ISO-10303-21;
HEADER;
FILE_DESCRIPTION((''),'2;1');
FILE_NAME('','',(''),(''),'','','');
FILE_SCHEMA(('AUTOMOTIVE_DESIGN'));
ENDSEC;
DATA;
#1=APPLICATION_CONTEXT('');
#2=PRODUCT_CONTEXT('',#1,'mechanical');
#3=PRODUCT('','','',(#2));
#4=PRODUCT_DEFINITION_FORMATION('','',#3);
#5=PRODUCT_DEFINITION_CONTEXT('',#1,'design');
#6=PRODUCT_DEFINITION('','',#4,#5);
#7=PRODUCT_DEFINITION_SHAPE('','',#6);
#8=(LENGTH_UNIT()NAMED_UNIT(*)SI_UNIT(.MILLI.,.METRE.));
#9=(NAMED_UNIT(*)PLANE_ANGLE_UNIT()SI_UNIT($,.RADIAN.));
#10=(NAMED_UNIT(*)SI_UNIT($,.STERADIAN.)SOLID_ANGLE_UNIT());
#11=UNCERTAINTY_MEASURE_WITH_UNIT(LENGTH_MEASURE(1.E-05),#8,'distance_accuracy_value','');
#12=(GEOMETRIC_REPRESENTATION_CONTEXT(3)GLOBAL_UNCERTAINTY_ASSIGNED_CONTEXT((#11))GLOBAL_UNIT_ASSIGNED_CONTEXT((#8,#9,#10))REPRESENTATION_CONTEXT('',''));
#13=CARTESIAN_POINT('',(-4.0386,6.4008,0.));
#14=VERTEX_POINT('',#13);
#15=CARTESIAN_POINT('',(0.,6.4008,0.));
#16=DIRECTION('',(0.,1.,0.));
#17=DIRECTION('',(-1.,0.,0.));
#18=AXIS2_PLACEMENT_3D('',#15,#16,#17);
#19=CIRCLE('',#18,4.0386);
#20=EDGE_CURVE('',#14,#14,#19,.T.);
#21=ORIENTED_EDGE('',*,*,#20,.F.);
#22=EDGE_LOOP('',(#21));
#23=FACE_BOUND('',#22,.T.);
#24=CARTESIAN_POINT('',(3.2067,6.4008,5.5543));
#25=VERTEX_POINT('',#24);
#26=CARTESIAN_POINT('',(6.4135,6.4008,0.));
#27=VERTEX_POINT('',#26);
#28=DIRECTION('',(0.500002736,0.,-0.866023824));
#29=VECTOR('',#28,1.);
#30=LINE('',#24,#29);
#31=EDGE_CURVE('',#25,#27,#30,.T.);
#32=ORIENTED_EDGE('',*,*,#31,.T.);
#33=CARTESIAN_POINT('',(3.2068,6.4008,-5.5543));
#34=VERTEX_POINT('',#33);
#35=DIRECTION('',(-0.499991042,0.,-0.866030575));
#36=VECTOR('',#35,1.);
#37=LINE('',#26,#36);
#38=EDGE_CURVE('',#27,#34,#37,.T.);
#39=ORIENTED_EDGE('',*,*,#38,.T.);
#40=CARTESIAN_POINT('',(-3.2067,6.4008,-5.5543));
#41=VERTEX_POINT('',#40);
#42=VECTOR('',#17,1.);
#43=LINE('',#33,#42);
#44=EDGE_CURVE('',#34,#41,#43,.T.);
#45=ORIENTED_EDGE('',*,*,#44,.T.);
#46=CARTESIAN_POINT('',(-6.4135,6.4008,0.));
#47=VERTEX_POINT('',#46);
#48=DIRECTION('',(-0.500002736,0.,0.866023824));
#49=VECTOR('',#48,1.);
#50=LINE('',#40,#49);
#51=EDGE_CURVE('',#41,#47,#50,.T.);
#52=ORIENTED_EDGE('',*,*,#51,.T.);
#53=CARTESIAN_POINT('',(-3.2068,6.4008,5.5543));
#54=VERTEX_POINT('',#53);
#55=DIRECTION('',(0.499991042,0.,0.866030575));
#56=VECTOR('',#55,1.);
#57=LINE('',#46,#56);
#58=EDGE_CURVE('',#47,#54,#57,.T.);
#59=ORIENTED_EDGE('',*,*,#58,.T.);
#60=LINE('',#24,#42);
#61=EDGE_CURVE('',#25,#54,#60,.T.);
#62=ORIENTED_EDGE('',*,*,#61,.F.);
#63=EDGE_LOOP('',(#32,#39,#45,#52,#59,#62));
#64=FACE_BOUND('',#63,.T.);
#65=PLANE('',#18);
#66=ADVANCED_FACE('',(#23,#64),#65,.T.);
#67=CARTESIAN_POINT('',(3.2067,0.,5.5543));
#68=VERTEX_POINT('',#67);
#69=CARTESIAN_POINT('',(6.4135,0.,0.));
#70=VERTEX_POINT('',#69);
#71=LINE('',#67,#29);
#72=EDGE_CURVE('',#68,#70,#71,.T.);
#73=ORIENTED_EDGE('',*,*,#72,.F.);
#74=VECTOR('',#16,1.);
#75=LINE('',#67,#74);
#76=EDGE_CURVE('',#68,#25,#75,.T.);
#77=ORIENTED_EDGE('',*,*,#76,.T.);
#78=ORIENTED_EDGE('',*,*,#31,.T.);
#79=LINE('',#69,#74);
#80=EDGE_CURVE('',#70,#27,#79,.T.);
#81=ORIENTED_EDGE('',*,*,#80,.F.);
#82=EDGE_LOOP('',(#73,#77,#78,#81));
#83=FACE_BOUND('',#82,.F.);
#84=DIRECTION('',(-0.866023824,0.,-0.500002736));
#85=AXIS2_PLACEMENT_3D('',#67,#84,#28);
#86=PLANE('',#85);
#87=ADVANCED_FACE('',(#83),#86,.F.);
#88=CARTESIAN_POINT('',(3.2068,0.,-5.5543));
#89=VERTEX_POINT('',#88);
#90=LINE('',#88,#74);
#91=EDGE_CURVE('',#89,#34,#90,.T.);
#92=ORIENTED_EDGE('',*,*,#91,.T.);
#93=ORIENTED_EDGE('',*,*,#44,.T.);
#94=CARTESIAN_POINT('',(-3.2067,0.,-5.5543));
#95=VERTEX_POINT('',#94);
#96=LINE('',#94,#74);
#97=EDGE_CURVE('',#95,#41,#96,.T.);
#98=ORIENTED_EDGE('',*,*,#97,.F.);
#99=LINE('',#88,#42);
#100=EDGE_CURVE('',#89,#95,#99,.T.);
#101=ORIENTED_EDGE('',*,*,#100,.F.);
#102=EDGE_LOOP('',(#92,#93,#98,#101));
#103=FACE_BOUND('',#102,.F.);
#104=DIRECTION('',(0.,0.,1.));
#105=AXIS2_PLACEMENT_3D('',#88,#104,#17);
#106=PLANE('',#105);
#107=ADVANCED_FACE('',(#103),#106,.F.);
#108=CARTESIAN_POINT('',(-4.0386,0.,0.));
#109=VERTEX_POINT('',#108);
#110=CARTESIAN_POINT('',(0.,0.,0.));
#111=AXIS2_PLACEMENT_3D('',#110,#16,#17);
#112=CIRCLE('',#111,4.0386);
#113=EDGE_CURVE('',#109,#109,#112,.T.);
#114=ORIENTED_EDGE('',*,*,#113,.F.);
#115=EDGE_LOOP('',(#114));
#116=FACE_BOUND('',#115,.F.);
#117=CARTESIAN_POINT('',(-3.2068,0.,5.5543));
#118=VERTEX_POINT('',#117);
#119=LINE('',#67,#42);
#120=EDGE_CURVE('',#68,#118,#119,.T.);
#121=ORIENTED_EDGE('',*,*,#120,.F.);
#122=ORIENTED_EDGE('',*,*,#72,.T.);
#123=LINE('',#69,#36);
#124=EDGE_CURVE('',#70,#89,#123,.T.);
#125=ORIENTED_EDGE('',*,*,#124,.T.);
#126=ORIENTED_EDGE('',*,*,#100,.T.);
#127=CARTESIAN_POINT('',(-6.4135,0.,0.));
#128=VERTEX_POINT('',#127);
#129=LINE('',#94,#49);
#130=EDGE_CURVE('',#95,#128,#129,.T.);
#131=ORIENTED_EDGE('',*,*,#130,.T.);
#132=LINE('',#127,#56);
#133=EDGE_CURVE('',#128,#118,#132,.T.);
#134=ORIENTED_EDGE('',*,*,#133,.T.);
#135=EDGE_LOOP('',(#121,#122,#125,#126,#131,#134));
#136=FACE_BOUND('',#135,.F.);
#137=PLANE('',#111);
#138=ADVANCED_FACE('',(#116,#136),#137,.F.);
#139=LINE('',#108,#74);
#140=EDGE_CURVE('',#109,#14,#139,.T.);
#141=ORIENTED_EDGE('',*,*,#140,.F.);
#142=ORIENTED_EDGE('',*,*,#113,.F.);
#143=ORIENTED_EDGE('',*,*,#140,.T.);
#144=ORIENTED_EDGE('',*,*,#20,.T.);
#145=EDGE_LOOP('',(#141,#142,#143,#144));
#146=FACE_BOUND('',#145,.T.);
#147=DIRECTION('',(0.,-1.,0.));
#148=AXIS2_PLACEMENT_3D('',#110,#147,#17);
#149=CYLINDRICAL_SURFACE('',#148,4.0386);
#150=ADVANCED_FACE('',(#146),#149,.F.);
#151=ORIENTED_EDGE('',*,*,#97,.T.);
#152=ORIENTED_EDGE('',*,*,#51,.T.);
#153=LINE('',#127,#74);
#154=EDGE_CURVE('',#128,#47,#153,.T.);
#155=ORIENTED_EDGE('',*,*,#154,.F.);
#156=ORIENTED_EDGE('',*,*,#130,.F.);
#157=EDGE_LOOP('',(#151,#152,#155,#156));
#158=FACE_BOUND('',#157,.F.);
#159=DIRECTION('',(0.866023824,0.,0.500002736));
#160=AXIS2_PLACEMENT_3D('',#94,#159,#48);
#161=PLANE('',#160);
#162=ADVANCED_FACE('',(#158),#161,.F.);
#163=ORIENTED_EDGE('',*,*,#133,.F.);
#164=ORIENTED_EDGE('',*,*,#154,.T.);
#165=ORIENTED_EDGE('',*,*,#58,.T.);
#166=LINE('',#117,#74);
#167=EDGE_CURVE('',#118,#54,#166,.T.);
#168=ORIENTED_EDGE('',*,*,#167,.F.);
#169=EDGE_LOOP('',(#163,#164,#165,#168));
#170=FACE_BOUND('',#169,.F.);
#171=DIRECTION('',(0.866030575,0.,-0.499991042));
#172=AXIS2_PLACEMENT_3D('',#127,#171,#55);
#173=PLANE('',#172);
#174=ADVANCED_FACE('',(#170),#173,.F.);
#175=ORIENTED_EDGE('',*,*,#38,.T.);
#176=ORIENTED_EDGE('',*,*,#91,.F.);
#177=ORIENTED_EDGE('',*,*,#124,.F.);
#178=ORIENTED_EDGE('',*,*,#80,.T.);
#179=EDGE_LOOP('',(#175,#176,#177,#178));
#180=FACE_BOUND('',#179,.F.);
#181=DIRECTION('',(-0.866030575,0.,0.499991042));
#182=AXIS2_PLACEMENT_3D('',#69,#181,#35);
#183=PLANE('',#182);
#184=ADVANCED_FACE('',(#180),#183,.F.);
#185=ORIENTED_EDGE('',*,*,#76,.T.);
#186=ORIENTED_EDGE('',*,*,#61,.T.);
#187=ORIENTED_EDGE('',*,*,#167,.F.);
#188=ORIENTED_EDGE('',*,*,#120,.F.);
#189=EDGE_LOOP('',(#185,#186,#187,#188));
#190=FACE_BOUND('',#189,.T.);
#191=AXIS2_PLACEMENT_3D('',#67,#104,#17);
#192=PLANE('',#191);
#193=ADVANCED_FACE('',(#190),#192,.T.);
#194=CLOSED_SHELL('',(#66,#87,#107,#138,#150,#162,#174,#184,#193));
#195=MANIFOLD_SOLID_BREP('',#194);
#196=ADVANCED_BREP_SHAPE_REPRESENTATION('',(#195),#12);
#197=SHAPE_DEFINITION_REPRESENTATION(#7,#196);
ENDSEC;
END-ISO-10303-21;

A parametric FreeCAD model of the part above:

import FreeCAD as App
import Part
import Sketcher
from FreeCAD import Vector
Q = App.Units.Quantity

doc = App.newDocument("Part")
body = doc.addObject("PartDesign::Body", "Body")

sketch1 = body.newObject("Sketcher::SketchObject", "Sketch")
sketch1.AttachmentSupport = (doc.getObject("XZ_Plane"), [""])
sketch1.MapMode = "FlatFace"
sketch1.addGeometry(Part.LineSegment(Vector(-3.2, 5.6, 0), Vector(3.2, 5.6, 0)), False)
sketch1.addGeometry(Part.LineSegment(Vector(3.2, 5.6, 0), Vector(6.4, 0, 0)), False)
sketch1.addGeometry(Part.LineSegment(Vector(6.4, 0, 0), Vector(3.2, -5.6, 0)), False)
sketch1.addGeometry(Part.LineSegment(Vector(3.2, -5.6, 0), Vector(-3.2, -5.6, 0)), False)
sketch1.addGeometry(Part.LineSegment(Vector(-3.2, -5.6, 0), Vector(-6.4, 0, 0)), False)
sketch1.addGeometry(Part.LineSegment(Vector(-6.4, 0, 0), Vector(-3.2, 5.6, 0)), False)
sketch1.addGeometry(Part.Circle(Vector(0, 0, 0), Vector(0, 0, 1), 4), False)
sketch1.addConstraint(Sketcher.Constraint("Coincident", 0, 2, 1, 1))
sketch1.addConstraint(Sketcher.Constraint("Coincident", 1, 2, 2, 1))
sketch1.addConstraint(Sketcher.Constraint("Coincident", 2, 2, 3, 1))
sketch1.addConstraint(Sketcher.Constraint("Coincident", 3, 2, 4, 1))
sketch1.addConstraint(Sketcher.Constraint("Coincident", 4, 2, 5, 1))
sketch1.addConstraint(Sketcher.Constraint("Coincident", 5, 2, 0, 1))
sketch1.addConstraint(Sketcher.Constraint("Horizontal", 0))
sketch1.addConstraint(Sketcher.Constraint("Horizontal", 3))
sketch1.addConstraint(Sketcher.Constraint("Coincident", 6, 3, -1, 1))
sketch1.addConstraint(Sketcher.Constraint("Symmetric", 0, 2, 3, 2, -1, 1))
sketch1.addConstraint(Sketcher.Constraint("Symmetric", 1, 2, 4, 2, -1, 1))
sketch1.addConstraint(Sketcher.Constraint("PointOnObject", 1, 2, -1))
sketch1.addConstraint(Sketcher.Constraint("Parallel", 2, 5))
sketch1.addConstraint(Sketcher.Constraint("Vertical", 0, 2, 2, 2))
sketch1.addConstraint(Sketcher.Constraint("Diameter", 6, Q("0.318 in")))
sketch1.addConstraint(Sketcher.Constraint("Angle", 1, Q("-59.9998 deg")))
sketch1.addConstraint(Sketcher.Constraint("DistanceX", 4, 2, 1, 2, Q("0.505 in")))
sketch1.addConstraint(Sketcher.Constraint("DistanceX", 0, 1, 0, 2, Q("0.2525 in")))
pad1 = body.newObject("PartDesign::Pad", "Pad")
pad1.Profile = sketch1
pad1.Length = Q("0.252 in")
pad1.Reversed = True

doc.recompute()
